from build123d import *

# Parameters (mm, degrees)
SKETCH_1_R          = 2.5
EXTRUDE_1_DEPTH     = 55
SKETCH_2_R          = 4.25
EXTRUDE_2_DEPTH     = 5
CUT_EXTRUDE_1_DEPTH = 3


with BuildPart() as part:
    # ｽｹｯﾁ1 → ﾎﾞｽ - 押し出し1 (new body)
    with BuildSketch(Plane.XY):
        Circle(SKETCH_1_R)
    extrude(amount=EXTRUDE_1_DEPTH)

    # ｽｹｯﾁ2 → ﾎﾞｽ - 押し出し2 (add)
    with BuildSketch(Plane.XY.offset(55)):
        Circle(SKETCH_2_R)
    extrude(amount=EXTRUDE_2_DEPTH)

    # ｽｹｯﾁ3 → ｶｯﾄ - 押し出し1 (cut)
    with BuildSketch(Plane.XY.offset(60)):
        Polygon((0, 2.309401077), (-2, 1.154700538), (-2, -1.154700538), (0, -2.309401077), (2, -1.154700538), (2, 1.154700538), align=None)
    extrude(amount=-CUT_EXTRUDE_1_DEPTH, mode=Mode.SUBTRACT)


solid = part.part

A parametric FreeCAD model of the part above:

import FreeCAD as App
import Part
import Sketcher
from FreeCAD import Vector
Q = App.Units.Quantity


def add_polygon(sketch, points):
    """Adds a closed chain of lines whose ends are joined by coincident constraints."""
    first, n = sketch.GeometryCount, len(points)
    for a, b in zip(points, points[1:] + points[:1]):
        sketch.addGeometry(Part.LineSegment(App.Vector(*a, 0), App.Vector(*b, 0)), False)
    for i in range(n):
        sketch.addConstraint(Sketcher.Constraint("Coincident", first + i, 2, first + (i + 1) % n, 1))

doc = App.newDocument("Part")
body = doc.addObject("PartDesign::Body", "Body")

sketch1 = body.newObject("Sketcher::SketchObject", "Sketch")
sketch1.AttachmentSupport = (doc.getObject("XY_Plane"), [""])
sketch1.MapMode = "FlatFace"
sketch1.addGeometry(Part.Circle(Vector(0, 0, 0), Vector(0, 0, 1), 2.5), False)
sketch1.addConstraint(Sketcher.Constraint("Coincident", 0, 3, -1, 1))
sketch1.addConstraint(Sketcher.Constraint("Diameter", 0, 5.0))
pad1 = body.newObject("PartDesign::Pad", "Pad")
pad1.Profile = sketch1
pad1.Length = 55

sketch2 = body.newObject("Sketcher::SketchObject", "Sketch001")
sketch2.AttachmentSupport = (doc.getObject("XY_Plane"), [""])
sketch2.MapMode = "FlatFace"
sketch2.AttachmentOffset = App.Placement(Vector(0, 0, 55), App.Rotation())
sketch2.addGeometry(Part.Circle(Vector(0, 0, 0), Vector(0, 0, 1), 4.2), False)
sketch2.addConstraint(Sketcher.Constraint("Coincident", 0, 3, -1, 1))
sketch2.addConstraint(Sketcher.Constraint("Diameter", 0, 8.5))
pad2 = body.newObject("PartDesign::Pad", "Pad001")
pad2.Profile = sketch2
pad2.Length = 5

sketch3 = body.newObject("Sketcher::SketchObject", "Sketch002")
sketch3.AttachmentSupport = (doc.getObject("XY_Plane"), [""])
sketch3.MapMode = "FlatFace"
sketch3.AttachmentOffset = App.Placement(Vector(0, 0, 60), App.Rotation())
add_polygon(sketch3, [(0, 2.3), (-2, 1.2), (-2, -1.2), (0, -2.3), (2, -1.2), (2, 1.2)])
sketch3.addConstraint(Sketcher.Constraint("Vertical", 1))
sketch3.addConstraint(Sketcher.Constraint("Vertical", 4))
sketch3.addConstraint(Sketcher.Constraint("Symmetric", 0, 2, 3, 2, -1, 1))
sketch3.addConstraint(Sketcher.Constraint("Symmetric", 2, 2, 5, 2, -1, 1))
sketch3.addConstraint(Sketcher.Constraint("PointOnObject", 2, 2, -2))
sketch3.addConstraint(Sketcher.Constraint("Parallel", 2, 5))
sketch3.addConstraint(Sketcher.Constraint("Horizontal", 1, 2, 3, 2))
sketch3.addConstraint(Sketcher.Constraint("Angle", 0, Q("-150 deg")))
sketch3.addConstraint(Sketcher.Constraint("DistanceX", 0, 2, -1, 1, 2.0))
sketch3.addConstraint(Sketcher.Constraint("DistanceY", 1, 2, 1, 1, 2.309401))
pocket1 = body.newObject("PartDesign::Pocket", "Pocket")
pocket1.Profile = sketch3
pocket1.Length = 3

doc.recompute()
